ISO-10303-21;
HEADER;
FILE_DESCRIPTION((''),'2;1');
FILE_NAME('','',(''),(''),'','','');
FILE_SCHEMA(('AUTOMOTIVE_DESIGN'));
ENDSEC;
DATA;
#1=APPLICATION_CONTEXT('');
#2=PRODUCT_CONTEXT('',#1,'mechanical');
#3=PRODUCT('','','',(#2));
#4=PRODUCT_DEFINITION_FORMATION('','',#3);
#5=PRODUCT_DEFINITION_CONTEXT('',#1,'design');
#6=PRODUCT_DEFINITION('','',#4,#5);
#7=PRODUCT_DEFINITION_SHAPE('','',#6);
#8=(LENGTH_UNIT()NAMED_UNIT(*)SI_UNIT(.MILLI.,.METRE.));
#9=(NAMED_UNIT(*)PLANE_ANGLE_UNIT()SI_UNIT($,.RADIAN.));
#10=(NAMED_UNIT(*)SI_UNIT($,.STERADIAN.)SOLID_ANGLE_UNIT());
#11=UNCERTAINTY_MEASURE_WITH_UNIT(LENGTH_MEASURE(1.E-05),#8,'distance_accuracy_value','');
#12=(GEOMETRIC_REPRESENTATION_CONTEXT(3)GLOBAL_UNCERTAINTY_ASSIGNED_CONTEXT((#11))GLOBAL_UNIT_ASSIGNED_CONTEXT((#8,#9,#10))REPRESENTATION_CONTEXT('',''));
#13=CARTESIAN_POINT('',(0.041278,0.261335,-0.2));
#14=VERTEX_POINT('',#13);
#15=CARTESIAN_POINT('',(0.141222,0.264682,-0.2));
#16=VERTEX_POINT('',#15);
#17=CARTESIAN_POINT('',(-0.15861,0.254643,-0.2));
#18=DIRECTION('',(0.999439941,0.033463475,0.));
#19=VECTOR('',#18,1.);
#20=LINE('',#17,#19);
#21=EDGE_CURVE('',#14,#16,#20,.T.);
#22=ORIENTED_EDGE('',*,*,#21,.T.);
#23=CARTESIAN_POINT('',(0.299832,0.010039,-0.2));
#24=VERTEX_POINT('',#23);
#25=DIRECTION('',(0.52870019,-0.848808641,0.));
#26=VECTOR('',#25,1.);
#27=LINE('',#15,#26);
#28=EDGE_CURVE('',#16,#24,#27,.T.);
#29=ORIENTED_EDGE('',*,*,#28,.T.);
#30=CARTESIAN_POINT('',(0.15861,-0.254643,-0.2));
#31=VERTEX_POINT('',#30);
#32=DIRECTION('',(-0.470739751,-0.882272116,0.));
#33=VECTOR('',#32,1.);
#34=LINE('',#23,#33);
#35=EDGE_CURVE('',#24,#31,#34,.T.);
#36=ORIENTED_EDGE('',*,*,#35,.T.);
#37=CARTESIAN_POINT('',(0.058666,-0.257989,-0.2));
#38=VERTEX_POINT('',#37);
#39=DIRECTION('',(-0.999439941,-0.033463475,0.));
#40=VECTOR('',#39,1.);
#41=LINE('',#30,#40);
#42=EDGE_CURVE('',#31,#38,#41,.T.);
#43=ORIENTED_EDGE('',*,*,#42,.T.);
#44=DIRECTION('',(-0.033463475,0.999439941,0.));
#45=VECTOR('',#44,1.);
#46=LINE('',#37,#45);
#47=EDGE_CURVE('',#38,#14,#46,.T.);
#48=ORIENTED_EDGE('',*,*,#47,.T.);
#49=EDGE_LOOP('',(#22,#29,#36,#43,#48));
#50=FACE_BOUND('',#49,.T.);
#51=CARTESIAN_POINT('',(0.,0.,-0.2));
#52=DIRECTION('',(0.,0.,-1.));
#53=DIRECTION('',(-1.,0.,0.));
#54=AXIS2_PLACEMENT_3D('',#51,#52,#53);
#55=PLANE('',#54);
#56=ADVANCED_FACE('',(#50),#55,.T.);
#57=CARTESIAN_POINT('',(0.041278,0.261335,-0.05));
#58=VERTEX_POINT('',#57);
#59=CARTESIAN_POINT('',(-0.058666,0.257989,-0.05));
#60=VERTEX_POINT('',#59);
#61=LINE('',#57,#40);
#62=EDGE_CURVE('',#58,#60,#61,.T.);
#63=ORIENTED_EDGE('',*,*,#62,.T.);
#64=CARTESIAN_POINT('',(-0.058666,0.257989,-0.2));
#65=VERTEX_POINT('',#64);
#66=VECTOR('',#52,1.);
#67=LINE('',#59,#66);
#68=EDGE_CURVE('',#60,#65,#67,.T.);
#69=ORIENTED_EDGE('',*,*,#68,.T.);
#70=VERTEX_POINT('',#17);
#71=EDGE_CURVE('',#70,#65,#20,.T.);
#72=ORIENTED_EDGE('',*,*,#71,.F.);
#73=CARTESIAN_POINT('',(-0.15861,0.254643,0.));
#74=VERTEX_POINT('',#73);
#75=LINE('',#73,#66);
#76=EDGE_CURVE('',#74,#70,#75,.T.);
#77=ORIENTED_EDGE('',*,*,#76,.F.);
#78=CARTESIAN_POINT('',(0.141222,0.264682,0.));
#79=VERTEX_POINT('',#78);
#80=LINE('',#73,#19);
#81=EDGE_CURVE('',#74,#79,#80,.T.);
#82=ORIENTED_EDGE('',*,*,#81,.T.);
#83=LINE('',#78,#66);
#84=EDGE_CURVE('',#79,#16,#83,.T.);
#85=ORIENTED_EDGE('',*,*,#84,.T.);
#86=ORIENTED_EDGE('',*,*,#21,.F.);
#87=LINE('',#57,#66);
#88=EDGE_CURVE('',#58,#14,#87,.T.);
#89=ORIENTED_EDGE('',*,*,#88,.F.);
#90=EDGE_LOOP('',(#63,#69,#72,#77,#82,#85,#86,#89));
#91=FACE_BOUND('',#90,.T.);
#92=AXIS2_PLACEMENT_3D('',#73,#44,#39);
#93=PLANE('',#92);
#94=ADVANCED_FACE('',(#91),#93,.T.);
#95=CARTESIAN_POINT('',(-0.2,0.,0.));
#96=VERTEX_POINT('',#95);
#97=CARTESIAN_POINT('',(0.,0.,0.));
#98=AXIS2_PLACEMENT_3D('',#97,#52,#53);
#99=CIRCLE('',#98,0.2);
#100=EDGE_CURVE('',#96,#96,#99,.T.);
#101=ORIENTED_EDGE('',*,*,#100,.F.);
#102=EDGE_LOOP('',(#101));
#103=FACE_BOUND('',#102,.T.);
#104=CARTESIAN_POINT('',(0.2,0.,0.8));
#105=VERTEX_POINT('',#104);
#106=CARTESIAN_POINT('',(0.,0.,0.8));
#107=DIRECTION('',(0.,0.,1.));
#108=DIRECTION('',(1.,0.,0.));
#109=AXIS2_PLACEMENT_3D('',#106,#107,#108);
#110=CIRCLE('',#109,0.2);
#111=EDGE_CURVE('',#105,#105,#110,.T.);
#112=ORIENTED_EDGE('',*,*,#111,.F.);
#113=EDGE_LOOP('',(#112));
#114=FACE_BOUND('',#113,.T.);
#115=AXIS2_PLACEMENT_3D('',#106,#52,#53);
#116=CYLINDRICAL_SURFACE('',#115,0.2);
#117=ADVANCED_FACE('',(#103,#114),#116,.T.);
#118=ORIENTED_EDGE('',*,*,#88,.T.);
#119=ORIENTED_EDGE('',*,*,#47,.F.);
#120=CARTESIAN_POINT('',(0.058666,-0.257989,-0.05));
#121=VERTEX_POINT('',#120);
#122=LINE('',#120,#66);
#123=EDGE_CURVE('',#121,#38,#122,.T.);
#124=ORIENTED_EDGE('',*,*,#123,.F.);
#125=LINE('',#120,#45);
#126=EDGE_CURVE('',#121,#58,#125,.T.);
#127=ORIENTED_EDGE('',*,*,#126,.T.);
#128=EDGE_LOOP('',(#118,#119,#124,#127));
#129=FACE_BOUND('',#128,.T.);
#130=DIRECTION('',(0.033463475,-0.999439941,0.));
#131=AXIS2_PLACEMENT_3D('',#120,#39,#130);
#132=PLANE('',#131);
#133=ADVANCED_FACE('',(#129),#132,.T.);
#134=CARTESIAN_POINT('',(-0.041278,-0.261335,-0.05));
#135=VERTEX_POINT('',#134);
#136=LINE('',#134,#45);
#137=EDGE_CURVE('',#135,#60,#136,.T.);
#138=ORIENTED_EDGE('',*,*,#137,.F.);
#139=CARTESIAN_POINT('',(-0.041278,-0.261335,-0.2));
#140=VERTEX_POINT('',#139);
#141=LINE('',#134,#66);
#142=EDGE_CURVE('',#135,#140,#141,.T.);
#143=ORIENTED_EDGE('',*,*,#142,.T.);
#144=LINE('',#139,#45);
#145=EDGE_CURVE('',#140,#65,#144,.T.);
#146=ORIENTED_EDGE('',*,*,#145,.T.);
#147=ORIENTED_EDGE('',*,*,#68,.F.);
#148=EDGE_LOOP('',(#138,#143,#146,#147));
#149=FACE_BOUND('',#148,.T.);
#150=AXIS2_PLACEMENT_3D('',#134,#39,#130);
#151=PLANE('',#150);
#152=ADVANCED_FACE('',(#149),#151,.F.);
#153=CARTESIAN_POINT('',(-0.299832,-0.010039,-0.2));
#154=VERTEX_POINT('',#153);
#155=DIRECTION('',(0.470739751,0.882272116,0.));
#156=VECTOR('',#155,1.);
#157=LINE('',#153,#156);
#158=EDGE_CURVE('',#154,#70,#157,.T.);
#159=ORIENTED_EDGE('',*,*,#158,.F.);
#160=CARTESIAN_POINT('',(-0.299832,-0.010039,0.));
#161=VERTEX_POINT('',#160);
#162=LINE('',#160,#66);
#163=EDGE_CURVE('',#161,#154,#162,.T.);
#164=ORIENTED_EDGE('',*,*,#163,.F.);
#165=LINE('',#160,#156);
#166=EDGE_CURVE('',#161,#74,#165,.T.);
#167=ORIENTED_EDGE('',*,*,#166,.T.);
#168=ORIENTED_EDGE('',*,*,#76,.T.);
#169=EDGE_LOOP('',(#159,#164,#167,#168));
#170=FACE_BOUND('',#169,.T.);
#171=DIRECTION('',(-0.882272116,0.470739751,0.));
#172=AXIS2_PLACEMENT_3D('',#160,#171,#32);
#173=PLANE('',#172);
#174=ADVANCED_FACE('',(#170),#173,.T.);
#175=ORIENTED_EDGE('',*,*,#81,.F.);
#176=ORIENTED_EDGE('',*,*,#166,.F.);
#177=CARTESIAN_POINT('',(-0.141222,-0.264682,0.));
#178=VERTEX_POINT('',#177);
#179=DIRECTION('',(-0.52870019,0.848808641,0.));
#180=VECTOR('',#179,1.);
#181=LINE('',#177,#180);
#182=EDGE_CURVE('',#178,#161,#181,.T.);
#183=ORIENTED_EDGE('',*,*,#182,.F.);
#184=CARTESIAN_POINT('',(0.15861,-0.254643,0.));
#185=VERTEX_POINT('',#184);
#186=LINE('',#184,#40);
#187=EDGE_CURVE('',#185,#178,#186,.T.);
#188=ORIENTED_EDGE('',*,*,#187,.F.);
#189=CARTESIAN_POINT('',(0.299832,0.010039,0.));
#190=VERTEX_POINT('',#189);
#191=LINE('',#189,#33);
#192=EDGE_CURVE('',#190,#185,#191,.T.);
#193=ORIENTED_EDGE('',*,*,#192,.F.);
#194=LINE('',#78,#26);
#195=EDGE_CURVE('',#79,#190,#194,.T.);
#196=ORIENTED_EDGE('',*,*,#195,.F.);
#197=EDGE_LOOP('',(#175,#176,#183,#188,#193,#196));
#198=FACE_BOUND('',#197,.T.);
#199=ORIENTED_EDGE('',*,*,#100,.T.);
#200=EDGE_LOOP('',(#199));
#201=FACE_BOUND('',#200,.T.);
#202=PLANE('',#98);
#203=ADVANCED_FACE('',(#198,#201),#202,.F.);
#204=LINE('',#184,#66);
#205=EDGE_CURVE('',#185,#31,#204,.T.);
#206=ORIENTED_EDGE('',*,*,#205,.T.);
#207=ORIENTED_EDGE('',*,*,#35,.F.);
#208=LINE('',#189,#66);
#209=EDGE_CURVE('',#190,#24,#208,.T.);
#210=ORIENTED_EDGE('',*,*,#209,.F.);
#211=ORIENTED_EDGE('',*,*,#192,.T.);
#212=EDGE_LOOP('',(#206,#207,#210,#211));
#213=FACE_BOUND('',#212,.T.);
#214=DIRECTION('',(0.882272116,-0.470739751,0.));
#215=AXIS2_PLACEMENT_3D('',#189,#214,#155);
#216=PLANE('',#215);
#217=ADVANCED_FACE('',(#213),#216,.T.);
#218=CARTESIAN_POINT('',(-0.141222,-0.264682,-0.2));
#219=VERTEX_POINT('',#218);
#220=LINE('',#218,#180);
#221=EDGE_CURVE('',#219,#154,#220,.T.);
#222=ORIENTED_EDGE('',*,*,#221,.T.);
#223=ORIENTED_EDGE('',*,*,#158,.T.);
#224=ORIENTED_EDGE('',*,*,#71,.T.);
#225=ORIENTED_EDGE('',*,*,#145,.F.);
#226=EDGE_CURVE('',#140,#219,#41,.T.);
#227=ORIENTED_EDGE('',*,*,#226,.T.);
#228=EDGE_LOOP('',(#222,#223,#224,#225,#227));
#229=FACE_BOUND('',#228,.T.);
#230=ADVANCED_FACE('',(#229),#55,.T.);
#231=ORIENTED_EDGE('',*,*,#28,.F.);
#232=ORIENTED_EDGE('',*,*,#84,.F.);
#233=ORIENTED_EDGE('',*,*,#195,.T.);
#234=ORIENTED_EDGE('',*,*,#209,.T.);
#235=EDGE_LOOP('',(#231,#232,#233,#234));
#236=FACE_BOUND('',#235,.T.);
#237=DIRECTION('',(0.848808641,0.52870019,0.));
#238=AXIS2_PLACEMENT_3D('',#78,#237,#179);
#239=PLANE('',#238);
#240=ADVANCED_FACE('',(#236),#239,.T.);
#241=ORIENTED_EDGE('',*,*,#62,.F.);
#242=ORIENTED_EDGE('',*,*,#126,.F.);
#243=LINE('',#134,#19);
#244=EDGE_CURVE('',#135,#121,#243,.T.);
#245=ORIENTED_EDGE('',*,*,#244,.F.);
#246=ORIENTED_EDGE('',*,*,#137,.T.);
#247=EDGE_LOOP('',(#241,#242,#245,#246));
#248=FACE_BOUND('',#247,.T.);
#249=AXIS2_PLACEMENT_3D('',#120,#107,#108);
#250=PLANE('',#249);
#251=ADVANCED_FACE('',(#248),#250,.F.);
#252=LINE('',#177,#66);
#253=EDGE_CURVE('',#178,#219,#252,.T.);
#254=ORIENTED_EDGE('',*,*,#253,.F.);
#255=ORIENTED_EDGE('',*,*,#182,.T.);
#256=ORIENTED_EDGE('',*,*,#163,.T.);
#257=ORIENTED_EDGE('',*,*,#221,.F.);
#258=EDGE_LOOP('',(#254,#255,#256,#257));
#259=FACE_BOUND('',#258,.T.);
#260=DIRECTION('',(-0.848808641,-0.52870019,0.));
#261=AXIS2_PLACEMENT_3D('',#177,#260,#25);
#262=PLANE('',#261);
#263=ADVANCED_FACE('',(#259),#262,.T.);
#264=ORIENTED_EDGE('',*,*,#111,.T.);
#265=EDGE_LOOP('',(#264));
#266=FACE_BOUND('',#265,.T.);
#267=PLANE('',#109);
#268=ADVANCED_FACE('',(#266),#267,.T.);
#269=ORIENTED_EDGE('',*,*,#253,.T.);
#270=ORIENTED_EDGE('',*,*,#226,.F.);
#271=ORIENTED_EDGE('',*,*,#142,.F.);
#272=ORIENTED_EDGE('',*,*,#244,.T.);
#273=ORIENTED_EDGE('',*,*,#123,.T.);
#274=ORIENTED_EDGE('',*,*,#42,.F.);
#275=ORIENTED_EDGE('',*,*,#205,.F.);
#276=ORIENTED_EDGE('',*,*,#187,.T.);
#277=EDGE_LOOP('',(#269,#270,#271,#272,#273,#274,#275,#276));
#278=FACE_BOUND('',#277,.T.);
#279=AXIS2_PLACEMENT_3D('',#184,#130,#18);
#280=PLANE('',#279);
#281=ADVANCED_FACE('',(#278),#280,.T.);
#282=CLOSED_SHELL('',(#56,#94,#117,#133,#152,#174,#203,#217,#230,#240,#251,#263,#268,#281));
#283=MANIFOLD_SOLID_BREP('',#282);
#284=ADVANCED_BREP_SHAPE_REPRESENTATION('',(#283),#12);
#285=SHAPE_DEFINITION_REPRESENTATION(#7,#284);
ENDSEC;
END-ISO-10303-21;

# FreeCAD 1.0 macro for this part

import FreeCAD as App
import Part
import Sketcher

V = App.Vector
Q = App.Units.Quantity


def add_polygon(sketch, points):
    """Adds a closed chain of lines whose ends are joined by coincident constraints."""
    first, n = sketch.GeometryCount, len(points)
    for a, b in zip(points, points[1:] + points[:1]):
        sketch.addGeometry(Part.LineSegment(App.Vector(*a, 0), App.Vector(*b, 0)), False)
    for i in range(n):
        sketch.addConstraint(Sketcher.Constraint("Coincident", first + i, 2, first + (i + 1) % n, 1))

doc = App.newDocument("Part")
body = doc.addObject("PartDesign::Body", "Body")

sketch1 = doc.addObject("Sketcher::SketchObject", "Sketch")
body.addObject(sketch1)
sketch1.AttachmentSupport = (doc.XY_Plane, [""])
sketch1.MapMode = "FlatFace"
sketch1.addGeometry(Part.Circle(V(0, 0, 0), V(0, 0, 1), 0.2), False)
sketch1.addConstraint([
    Sketcher.Constraint("Coincident", 0, 3, -1, 1),
    Sketcher.Constraint("Diameter", 0, Q("0.4 mm")),
])
pad1 = doc.addObject("PartDesign::Pad", "Pad")
body.addObject(pad1)
pad1.Profile = sketch1
pad1.Length = 0.8

sketch2 = doc.addObject("Sketcher::SketchObject", "Sketch001")
body.addObject(sketch2)
sketch2.AttachmentSupport = (doc.XY_Plane, [""])
sketch2.MapMode = "FlatFace"
sketch2.addGeometry(Part.Circle(V(0, 0, 0), V(0, 0, 1), 0.3), False)
sketch2.addConstraint([
    Sketcher.Constraint("Coincident", 0, 3, -1, 1),
    Sketcher.Constraint("Diameter", 0, Q("0.6 mm")),
])
pad2 = doc.addObject("PartDesign::Pad", "Pad001")
body.addObject(pad2)
pad2.Profile = sketch2
pad2.Length = 0.2
pad2.Reversed = True

sketch3 = doc.addObject("Sketcher::SketchObject", "Sketch002")
body.addObject(sketch3)
sketch3.AttachmentSupport = (doc.XY_Plane, [""])
sketch3.MapMode = "FlatFace"
sketch3.AttachmentOffset = App.Placement(V(0, 0, -0.2), App.Rotation())
sketch3.addGeometry(Part.Circle(V(0, 0, 0), V(0, 0, 1), 0.34), False)
add_polygon(sketch3, [(-0.3, -0.01), (-0.14, -0.26), (0.16, -0.25), (0.3, 0.01), (0.14, 0.26), (-0.16, 0.25)])
sketch3.addConstraint([
    Sketcher.Constraint("Coincident", 0, 3, -1, 1),
    Sketcher.Constraint("Symmetric", 1, 2, 4, 2, -1, 1),
    Sketcher.Constraint("Symmetric", 2, 2, 5, 2, -1, 1),
    Sketcher.Constraint("Symmetric", 3, 2, 6, 2, -1, 1),
    Sketcher.Constraint("Equal", 1, 2),
    Sketcher.Constraint("Equal", 2, 3),
    Sketcher.Constraint("Distance", 1, Q("0.3 mm")),
    Sketcher.Constraint("Diameter", 0, Q("0.680579 mm")),
    Sketcher.Constraint("DistanceX", 1, 2, -1, 1, Q("0.141222 mm")),
    Sketcher.Constraint("DistanceY", 1, 2, -1, 1, Q("0.264682 mm")),
    Sketcher.Constraint("DistanceX", -1, 1, 2, 2, Q("0.15861 mm")),
])
pocket1 = doc.addObject("PartDesign::Pocket", "Pocket")
body.addObject(pocket1)
pocket1.Profile = sketch3
pocket1.Length = 0.2
pocket1.Reversed = True

sketch4 = doc.addObject("Sketcher::SketchObject", "Sketch003")
body.addObject(sketch4)
sketch4.AttachmentSupport = (doc.XY_Plane, [""])
sketch4.MapMode = "FlatFace"
sketch4.AttachmentOffset = App.Placement(V(0, 0, -0.2), App.Rotation())
add_polygon(sketch4, [(-0.04, -0.26), (-0.06, 0.26), (0.04, 0.26), (0.06, -0.26)])
sketch4.addConstraint([
    Sketcher.Constraint("Symmetric", 0, 2, 2, 2, -1, 1),
    Sketcher.Constraint("Symmetric", 1, 2, 3, 2, -1, 1),
    Sketcher.Constraint("Perpendicular", 0, 1),
    Sketcher.Constraint("Distance", 1, Q("0.1 mm")),
    Sketcher.Constraint("DistanceY", -1, 1, 0, 2, Q("0.257989 mm")),
    Sketcher.Constraint("DistanceX", 1, 2, 2, 2, Q("0.017388 mm")),
])
pocket2 = doc.addObject("PartDesign::Pocket", "Pocket001")
body.addObject(pocket2)
pocket2.Profile = sketch4
pocket2.Length = 0.15
pocket2.Reversed = True

doc.recompute()
